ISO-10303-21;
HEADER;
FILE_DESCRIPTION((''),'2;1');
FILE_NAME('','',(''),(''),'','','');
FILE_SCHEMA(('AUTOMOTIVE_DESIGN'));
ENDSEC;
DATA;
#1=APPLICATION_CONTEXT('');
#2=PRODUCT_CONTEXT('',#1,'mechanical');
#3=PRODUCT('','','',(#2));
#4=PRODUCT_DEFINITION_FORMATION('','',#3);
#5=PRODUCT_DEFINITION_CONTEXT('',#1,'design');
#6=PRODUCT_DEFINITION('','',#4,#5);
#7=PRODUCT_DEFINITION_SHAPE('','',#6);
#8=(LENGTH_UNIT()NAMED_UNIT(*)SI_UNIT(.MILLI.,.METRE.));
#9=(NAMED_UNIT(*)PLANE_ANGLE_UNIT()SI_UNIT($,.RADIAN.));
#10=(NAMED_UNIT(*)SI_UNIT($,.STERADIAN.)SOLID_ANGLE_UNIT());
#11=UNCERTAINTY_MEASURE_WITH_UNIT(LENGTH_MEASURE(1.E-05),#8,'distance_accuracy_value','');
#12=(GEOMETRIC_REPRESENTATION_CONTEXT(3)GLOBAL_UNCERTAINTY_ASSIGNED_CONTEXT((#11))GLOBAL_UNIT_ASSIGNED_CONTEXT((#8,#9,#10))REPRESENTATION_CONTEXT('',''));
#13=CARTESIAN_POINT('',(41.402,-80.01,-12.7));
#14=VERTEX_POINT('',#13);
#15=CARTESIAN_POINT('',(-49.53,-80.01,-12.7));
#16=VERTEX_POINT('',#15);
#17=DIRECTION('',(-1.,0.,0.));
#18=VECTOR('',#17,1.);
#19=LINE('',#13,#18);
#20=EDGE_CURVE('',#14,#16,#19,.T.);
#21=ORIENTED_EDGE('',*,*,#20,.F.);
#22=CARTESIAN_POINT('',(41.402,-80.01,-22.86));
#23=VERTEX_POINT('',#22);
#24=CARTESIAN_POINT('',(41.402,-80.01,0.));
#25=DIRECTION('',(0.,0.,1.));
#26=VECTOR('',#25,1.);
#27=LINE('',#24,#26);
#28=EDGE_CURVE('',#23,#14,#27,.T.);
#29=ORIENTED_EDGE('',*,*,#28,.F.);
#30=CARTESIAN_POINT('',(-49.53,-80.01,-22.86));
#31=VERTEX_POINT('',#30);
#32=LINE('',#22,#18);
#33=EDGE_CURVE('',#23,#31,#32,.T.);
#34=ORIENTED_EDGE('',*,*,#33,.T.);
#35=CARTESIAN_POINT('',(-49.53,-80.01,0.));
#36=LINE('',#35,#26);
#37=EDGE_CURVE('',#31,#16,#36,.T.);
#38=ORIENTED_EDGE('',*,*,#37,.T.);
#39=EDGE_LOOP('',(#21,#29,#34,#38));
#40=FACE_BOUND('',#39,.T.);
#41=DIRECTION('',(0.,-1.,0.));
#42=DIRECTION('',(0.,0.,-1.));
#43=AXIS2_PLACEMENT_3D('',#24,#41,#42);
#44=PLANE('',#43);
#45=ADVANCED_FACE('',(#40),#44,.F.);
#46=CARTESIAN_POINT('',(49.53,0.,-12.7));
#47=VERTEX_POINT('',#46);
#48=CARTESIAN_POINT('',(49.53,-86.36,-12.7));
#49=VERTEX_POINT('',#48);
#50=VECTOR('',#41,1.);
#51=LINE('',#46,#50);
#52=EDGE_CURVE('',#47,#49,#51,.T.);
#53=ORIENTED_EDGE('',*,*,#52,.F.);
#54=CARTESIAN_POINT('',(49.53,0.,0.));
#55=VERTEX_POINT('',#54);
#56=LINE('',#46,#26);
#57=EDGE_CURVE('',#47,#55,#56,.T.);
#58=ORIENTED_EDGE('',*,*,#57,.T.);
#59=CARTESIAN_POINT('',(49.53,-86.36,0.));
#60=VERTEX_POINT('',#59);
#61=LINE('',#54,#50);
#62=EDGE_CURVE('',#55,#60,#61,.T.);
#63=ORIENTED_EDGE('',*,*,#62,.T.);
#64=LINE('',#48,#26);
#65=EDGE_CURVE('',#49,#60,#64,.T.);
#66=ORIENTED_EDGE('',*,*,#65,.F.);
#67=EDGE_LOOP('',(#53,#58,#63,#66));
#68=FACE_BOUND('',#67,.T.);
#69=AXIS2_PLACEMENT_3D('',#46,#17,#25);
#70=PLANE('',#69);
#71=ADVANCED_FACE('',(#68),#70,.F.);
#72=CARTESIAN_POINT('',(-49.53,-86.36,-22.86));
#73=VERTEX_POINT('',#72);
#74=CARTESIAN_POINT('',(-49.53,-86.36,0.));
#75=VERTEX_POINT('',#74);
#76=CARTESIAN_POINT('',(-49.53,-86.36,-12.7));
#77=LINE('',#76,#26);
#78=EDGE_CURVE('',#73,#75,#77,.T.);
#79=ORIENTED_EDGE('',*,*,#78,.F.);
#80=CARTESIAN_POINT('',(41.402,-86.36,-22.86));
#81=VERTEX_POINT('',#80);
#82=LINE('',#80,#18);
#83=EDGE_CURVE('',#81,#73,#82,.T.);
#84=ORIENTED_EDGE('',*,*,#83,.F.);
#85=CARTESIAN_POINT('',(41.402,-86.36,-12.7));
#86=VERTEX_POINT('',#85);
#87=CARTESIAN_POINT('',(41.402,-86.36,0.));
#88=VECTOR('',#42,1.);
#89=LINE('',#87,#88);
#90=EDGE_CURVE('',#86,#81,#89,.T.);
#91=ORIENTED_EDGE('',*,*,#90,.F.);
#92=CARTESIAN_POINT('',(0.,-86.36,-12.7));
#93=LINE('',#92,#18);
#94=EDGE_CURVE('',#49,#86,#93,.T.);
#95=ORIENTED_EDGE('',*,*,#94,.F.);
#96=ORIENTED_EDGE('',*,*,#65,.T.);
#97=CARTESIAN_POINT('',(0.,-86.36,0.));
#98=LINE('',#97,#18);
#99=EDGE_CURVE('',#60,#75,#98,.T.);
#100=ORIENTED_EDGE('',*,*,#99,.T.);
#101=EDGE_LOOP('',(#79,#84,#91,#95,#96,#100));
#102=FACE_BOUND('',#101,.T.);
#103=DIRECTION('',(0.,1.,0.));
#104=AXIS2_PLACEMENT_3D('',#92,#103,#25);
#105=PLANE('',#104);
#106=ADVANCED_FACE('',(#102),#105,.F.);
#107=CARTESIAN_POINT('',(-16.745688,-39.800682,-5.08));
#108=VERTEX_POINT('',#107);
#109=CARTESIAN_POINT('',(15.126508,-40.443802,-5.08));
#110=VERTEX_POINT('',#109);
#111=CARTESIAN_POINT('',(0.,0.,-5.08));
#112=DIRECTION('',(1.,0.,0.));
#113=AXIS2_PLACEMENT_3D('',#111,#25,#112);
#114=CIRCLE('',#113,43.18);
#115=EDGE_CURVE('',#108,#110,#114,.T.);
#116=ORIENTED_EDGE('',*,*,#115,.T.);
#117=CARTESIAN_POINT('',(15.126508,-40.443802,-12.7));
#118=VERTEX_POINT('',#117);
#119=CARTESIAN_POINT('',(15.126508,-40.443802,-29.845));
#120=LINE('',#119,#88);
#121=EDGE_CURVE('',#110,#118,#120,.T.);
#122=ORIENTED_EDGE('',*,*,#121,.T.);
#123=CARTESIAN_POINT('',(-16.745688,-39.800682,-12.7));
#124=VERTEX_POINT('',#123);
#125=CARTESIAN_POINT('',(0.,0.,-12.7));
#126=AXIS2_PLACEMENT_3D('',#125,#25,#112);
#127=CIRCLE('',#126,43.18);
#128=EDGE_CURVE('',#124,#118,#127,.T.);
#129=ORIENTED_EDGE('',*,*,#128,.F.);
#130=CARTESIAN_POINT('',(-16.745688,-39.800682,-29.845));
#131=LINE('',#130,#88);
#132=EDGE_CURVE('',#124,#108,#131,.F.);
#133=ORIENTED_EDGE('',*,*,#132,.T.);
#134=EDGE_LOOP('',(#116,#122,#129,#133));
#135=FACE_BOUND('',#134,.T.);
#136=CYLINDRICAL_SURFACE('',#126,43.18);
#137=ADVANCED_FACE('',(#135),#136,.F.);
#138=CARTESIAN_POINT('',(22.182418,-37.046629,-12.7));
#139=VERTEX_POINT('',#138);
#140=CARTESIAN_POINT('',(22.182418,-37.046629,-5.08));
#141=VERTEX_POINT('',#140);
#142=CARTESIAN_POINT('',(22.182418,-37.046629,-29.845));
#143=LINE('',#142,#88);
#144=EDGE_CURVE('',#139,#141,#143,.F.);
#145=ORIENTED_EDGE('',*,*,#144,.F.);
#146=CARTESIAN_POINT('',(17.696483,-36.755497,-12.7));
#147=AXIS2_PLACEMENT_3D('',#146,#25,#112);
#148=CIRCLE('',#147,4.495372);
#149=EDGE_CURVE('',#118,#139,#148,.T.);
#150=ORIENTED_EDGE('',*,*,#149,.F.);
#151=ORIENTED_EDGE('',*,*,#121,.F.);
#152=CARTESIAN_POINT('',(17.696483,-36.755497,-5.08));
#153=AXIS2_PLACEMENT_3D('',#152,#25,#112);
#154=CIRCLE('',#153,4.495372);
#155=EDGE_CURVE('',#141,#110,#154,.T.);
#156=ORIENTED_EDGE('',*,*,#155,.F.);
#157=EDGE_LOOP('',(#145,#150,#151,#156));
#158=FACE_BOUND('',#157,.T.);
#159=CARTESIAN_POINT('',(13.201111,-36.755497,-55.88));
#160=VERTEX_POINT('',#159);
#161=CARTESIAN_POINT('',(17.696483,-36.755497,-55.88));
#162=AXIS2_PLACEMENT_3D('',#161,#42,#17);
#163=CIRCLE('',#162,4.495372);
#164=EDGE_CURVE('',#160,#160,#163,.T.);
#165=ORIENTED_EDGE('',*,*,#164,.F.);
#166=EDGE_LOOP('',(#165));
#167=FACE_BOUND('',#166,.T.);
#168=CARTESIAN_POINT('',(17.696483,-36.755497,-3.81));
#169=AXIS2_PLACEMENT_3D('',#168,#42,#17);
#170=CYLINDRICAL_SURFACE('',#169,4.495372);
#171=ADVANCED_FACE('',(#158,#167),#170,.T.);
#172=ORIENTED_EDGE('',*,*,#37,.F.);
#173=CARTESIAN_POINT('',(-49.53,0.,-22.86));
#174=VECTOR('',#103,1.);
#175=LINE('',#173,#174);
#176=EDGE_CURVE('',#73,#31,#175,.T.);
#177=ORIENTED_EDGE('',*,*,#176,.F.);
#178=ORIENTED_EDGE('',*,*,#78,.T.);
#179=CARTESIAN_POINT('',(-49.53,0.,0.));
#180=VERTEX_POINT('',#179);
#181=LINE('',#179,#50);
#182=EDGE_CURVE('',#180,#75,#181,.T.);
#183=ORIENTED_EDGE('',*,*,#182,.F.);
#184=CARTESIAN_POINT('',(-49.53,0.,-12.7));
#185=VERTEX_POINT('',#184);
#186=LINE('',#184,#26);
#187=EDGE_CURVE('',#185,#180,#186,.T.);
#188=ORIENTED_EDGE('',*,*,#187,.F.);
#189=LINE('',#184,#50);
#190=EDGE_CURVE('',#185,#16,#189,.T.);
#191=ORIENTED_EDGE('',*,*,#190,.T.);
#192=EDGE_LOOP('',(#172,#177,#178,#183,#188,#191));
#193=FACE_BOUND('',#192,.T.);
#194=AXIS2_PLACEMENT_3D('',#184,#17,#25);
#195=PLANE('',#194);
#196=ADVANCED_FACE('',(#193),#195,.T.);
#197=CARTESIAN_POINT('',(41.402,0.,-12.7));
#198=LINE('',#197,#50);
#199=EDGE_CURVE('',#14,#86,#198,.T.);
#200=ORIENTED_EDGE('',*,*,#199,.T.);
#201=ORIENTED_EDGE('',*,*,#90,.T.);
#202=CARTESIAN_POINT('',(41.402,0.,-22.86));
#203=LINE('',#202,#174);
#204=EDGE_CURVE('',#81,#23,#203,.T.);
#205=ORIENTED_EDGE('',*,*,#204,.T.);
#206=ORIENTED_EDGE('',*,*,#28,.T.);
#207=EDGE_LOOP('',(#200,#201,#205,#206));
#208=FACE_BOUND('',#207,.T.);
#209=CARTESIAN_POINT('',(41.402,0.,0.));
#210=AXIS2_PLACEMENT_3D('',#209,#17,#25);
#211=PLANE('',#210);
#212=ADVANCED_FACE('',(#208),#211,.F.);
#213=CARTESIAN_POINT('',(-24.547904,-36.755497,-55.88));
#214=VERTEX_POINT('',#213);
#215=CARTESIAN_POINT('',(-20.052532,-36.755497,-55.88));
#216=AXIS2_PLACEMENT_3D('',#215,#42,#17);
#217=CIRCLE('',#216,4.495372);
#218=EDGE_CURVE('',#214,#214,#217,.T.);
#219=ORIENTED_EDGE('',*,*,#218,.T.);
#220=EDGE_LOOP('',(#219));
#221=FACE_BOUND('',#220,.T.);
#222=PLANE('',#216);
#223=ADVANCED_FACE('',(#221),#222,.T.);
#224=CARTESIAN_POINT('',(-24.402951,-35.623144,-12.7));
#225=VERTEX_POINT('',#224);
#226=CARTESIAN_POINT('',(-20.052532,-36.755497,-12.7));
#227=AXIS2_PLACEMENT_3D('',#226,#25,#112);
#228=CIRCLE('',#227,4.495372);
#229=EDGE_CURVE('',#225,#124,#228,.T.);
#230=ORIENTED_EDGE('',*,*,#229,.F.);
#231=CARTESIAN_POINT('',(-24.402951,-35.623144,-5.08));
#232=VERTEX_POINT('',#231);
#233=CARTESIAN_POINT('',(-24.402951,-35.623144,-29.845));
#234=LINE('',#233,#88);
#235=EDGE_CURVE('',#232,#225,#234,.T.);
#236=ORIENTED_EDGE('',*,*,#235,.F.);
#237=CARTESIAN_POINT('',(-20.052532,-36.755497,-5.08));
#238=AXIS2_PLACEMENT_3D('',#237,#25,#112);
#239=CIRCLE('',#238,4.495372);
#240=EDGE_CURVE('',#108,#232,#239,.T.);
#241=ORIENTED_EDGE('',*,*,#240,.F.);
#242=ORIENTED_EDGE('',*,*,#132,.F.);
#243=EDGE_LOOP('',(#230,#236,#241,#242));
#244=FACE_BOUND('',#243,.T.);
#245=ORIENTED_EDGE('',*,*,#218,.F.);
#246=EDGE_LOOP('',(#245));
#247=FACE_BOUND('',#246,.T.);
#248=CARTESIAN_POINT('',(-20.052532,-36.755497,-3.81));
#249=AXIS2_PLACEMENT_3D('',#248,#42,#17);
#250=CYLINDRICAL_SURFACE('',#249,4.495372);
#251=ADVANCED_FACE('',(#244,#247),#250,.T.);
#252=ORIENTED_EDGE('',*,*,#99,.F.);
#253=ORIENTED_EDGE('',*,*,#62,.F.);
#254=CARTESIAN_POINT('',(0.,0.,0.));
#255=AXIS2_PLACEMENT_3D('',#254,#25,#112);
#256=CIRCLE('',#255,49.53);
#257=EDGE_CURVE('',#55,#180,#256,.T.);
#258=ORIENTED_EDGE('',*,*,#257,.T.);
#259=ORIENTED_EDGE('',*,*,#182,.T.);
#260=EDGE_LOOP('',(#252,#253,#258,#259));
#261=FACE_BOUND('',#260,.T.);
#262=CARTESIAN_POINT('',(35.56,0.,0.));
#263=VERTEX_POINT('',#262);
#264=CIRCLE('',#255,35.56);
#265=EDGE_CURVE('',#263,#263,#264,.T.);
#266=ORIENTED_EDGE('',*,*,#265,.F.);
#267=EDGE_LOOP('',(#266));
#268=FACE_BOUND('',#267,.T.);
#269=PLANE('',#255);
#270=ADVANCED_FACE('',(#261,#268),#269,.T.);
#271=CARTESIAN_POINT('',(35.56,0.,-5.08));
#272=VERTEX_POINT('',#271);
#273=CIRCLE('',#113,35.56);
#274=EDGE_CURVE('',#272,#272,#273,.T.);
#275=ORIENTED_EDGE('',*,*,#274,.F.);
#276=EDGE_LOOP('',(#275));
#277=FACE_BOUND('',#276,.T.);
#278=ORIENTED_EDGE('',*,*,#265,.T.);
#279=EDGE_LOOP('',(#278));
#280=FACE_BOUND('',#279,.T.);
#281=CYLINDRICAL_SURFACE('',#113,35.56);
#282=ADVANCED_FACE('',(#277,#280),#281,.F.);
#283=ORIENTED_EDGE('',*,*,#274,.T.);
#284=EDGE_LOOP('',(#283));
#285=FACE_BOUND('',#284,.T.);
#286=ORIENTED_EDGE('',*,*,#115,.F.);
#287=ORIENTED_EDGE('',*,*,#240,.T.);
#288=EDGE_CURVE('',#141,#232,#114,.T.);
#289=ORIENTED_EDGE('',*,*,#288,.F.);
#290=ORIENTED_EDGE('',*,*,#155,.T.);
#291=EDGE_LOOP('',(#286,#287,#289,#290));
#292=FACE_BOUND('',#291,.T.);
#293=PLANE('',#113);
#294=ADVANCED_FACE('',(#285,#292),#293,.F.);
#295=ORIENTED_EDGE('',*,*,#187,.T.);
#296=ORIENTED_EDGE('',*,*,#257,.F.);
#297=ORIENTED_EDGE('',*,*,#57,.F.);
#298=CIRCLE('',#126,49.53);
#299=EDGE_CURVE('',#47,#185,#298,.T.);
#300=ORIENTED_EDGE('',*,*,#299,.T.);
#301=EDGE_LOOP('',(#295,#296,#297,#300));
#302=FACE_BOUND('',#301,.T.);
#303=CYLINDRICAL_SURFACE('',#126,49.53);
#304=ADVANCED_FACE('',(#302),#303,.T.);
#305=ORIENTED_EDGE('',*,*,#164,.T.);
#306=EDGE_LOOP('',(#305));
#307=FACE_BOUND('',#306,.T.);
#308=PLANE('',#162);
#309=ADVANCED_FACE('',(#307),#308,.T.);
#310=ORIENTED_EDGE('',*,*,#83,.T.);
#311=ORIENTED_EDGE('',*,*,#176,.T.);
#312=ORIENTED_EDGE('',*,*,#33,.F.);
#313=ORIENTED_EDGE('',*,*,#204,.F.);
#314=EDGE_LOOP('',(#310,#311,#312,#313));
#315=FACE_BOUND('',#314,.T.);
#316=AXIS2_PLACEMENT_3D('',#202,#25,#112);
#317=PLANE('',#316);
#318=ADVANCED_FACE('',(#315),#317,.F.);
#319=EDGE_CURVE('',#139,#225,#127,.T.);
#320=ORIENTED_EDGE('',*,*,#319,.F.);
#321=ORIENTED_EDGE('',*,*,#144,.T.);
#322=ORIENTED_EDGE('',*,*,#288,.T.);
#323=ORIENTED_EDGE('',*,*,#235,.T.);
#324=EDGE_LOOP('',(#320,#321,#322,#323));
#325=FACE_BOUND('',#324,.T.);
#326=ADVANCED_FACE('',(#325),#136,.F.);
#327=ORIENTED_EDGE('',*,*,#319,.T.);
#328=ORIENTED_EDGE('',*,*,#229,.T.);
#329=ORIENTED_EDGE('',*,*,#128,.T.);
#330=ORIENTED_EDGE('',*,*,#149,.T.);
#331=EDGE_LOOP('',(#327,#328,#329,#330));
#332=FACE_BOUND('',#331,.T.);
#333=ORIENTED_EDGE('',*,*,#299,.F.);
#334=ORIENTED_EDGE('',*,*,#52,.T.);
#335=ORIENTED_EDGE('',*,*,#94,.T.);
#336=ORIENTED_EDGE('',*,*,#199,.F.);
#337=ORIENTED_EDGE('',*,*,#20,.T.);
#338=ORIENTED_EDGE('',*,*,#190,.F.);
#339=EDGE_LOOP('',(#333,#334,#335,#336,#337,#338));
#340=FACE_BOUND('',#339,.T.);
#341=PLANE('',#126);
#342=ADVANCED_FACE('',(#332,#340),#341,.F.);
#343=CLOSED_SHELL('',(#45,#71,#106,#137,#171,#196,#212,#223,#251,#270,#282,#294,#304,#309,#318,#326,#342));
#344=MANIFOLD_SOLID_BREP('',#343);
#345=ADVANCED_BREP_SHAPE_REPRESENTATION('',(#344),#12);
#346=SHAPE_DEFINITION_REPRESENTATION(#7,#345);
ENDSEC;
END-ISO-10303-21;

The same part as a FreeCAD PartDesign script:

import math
import FreeCAD as App
import Part
import Sketcher

V = App.Vector
Q = App.Units.Quantity


def add_polygon(sketch, points):
    """Adds a closed chain of lines whose ends are joined by coincident constraints."""
    first, n = sketch.GeometryCount, len(points)
    for a, b in zip(points, points[1:] + points[:1]):
        sketch.addGeometry(Part.LineSegment(App.Vector(*a, 0), App.Vector(*b, 0)), False)
    for i in range(n):
        sketch.addConstraint(Sketcher.Constraint("Coincident", first + i, 2, first + (i + 1) % n, 1))

doc = App.newDocument("Part")
body = doc.addObject("PartDesign::Body", "Body")

# Sketch on XY plane
sketch1 = body.newObject("Sketcher::SketchObject", "Sketch")
sketch1.AttachmentSupport = (doc.getObject("XY_Plane"), [""])
sketch1.MapMode = "FlatFace"
sketch1.addGeometry(Part.Circle(V(0, 0, 0), V(0, 0, 1), 43), False)
sketch1.addGeometry(Part.Circle(V(0, 0, 0), V(0, 0, 1), 36), False)
sketch1.addConstraint(Sketcher.Constraint("Coincident", 0, 3, -1, 1))
sketch1.addConstraint(Sketcher.Constraint("Coincident", 1, 3, -1, 1))
sketch1.addConstraint(Sketcher.Constraint("Diameter", 0, Q("3.4 in")))
sketch1.addConstraint(Sketcher.Constraint("Diameter", 1, Q("2.8 in")))
pad1 = body.newObject("PartDesign::Pad", "Pad")
pad1.Profile = sketch1
pad1.Length = Q("0.2 in")
pad1.Reversed = True

# Sketch on XY plane
sketch2 = body.newObject("Sketcher::SketchObject", "Sketch001")
sketch2.AttachmentSupport = (doc.getObject("XY_Plane"), [""])
sketch2.MapMode = "FlatFace"
sketch2.addGeometry(Part.Circle(V(0, 0, 0), V(0, 0, 1), 50), False)
sketch2.addGeometry(Part.Circle(V(0, 0, 0), V(0, 0, 1), 43), False)
sketch2.addConstraint(Sketcher.Constraint("Coincident", 0, 3, -1, 1))
sketch2.addConstraint(Sketcher.Constraint("Coincident", 1, 3, -1, 1))
sketch2.addConstraint(Sketcher.Constraint("Diameter", 0, Q("3.9 in")))
sketch2.addConstraint(Sketcher.Constraint("Diameter", 1, Q("3.4 in")))
pad2 = body.newObject("PartDesign::Pad", "Pad001")
pad2.Profile = sketch2
pad2.Length = Q("0.5 in")
pad2.Reversed = True

# Sketch on XY plane
sketch3 = body.newObject("Sketcher::SketchObject", "Sketch002")
sketch3.AttachmentSupport = (doc.getObject("XY_Plane"), [""])
sketch3.MapMode = "FlatFace"
sketch3.addGeometry(Part.ArcOfCircle(Part.Circle(V(0, 0, 0), V(0, 0, 1), 50), math.radians(180), math.radians(360)), False)
sketch3.addGeometry(Part.LineSegment(V(-50, 0, 0), V(-50, -86, 0)), False)
sketch3.addGeometry(Part.LineSegment(V(-50, -86, 0), V(50, -86, 0)), False)
sketch3.addGeometry(Part.LineSegment(V(50, -86, 0), V(50, 0, 0)), False)
sketch3.addConstraint(Sketcher.Constraint("Tangent", 0, 1, 1, 1))
sketch3.addConstraint(Sketcher.Constraint("Coincident", 1, 2, 2, 1))
sketch3.addConstraint(Sketcher.Constraint("Coincident", 2, 2, 3, 1))
sketch3.addConstraint(Sketcher.Constraint("Tangent", 3, 2, 0, 2))
sketch3.addConstraint(Sketcher.Constraint("Vertical", 1))
sketch3.addConstraint(Sketcher.Constraint("Horizontal", 2))
sketch3.addConstraint(Sketcher.Constraint("Vertical", 3))
sketch3.addConstraint(Sketcher.Constraint("Coincident", 0, 3, -1, 1))
sketch3.addConstraint(Sketcher.Constraint("Radius", 0, Q("1.95 in")))
sketch3.addConstraint(Sketcher.Constraint("DistanceY", 1, 2, 1, 1, Q("3.4 in")))
pad3 = body.newObject("PartDesign::Pad", "Pad002")
pad3.Profile = sketch3
pad3.Length = Q("0.5 in")
pad3.Reversed = True

# Sketch on YZ plane
sketch4 = body.newObject("Sketcher::SketchObject", "Sketch003")
sketch4.AttachmentSupport = (doc.getObject("YZ_Plane"), [""])
sketch4.MapMode = "FlatFace"
sketch4.AttachmentOffset = App.Placement(V(0, 0, -1.95 * 25.4), App.Rotation())
add_polygon(sketch4, [(-80, -23), (-86, -23), (-86, -13), (-80, -13)])  # lines 0-3
sketch4.addConstraint(Sketcher.Constraint("Horizontal", 0))
sketch4.addConstraint(Sketcher.Constraint("Vertical", 1))
sketch4.addConstraint(Sketcher.Constraint("Horizontal", 2))
sketch4.addConstraint(Sketcher.Constraint("Vertical", 3))
sketch4.addConstraint(Sketcher.Constraint("DistanceY", 1, 1, 1, 2, Q("0.4 in")))
sketch4.addConstraint(Sketcher.Constraint("DistanceX", 0, 2, 0, 1, Q("0.25 in")))
sketch4.addConstraint(Sketcher.Constraint("DistanceX", 0, 2, -1, 1, Q("3.4 in")))
sketch4.addConstraint(Sketcher.Constraint("DistanceY", 0, 2, -1, 1, Q("0.9 in")))
pad4 = body.newObject("PartDesign::Pad", "Pad003")
pad4.Profile = sketch4
pad4.Length = Q("3.58 in")

# Sketch on XY plane
sketch5 = body.newObject("Sketcher::SketchObject", "Sketch004")
sketch5.AttachmentSupport = (doc.getObject("XY_Plane"), [""])
sketch5.MapMode = "FlatFace"
sketch5.AttachmentOffset = App.Placement(V(0, 0, -0.5 * 25.4), App.Rotation())
sketch5.addGeometry(Part.Circle(V(17.7, -36.8, 0), V(0, 0, 1), 4.5), False)
sketch5.addGeometry(Part.Circle(V(-20.1, -36.8, 0), V(0, 0, 1), 4.5), False)
sketch5.addConstraint(Sketcher.Constraint("Equal", 0, 1))
sketch5.addConstraint(Sketcher.Constraint("Horizontal", 0, 3, 1, 3))
sketch5.addConstraint(Sketcher.Constraint("Diameter", 0, Q("8.990744 mm")))
sketch5.addConstraint(Sketcher.Constraint("DistanceX", 1, 3, -1, 1, Q("20.052532 mm")))
sketch5.addConstraint(Sketcher.Constraint("DistanceX", -1, 1, 0, 3, Q("17.696483 mm")))
sketch5.addConstraint(Sketcher.Constraint("DistanceY", 0, 3, -1, 1, Q("36.755497 mm")))
pad5 = body.newObject("PartDesign::Pad", "Pad004")
pad5.Profile = sketch5
pad5.Type = "TwoLengths"
pad5.Length = Q("1.7 in")
pad5.Length2 = Q("0.35 in")
pad5.Reversed = True

doc.recompute()
